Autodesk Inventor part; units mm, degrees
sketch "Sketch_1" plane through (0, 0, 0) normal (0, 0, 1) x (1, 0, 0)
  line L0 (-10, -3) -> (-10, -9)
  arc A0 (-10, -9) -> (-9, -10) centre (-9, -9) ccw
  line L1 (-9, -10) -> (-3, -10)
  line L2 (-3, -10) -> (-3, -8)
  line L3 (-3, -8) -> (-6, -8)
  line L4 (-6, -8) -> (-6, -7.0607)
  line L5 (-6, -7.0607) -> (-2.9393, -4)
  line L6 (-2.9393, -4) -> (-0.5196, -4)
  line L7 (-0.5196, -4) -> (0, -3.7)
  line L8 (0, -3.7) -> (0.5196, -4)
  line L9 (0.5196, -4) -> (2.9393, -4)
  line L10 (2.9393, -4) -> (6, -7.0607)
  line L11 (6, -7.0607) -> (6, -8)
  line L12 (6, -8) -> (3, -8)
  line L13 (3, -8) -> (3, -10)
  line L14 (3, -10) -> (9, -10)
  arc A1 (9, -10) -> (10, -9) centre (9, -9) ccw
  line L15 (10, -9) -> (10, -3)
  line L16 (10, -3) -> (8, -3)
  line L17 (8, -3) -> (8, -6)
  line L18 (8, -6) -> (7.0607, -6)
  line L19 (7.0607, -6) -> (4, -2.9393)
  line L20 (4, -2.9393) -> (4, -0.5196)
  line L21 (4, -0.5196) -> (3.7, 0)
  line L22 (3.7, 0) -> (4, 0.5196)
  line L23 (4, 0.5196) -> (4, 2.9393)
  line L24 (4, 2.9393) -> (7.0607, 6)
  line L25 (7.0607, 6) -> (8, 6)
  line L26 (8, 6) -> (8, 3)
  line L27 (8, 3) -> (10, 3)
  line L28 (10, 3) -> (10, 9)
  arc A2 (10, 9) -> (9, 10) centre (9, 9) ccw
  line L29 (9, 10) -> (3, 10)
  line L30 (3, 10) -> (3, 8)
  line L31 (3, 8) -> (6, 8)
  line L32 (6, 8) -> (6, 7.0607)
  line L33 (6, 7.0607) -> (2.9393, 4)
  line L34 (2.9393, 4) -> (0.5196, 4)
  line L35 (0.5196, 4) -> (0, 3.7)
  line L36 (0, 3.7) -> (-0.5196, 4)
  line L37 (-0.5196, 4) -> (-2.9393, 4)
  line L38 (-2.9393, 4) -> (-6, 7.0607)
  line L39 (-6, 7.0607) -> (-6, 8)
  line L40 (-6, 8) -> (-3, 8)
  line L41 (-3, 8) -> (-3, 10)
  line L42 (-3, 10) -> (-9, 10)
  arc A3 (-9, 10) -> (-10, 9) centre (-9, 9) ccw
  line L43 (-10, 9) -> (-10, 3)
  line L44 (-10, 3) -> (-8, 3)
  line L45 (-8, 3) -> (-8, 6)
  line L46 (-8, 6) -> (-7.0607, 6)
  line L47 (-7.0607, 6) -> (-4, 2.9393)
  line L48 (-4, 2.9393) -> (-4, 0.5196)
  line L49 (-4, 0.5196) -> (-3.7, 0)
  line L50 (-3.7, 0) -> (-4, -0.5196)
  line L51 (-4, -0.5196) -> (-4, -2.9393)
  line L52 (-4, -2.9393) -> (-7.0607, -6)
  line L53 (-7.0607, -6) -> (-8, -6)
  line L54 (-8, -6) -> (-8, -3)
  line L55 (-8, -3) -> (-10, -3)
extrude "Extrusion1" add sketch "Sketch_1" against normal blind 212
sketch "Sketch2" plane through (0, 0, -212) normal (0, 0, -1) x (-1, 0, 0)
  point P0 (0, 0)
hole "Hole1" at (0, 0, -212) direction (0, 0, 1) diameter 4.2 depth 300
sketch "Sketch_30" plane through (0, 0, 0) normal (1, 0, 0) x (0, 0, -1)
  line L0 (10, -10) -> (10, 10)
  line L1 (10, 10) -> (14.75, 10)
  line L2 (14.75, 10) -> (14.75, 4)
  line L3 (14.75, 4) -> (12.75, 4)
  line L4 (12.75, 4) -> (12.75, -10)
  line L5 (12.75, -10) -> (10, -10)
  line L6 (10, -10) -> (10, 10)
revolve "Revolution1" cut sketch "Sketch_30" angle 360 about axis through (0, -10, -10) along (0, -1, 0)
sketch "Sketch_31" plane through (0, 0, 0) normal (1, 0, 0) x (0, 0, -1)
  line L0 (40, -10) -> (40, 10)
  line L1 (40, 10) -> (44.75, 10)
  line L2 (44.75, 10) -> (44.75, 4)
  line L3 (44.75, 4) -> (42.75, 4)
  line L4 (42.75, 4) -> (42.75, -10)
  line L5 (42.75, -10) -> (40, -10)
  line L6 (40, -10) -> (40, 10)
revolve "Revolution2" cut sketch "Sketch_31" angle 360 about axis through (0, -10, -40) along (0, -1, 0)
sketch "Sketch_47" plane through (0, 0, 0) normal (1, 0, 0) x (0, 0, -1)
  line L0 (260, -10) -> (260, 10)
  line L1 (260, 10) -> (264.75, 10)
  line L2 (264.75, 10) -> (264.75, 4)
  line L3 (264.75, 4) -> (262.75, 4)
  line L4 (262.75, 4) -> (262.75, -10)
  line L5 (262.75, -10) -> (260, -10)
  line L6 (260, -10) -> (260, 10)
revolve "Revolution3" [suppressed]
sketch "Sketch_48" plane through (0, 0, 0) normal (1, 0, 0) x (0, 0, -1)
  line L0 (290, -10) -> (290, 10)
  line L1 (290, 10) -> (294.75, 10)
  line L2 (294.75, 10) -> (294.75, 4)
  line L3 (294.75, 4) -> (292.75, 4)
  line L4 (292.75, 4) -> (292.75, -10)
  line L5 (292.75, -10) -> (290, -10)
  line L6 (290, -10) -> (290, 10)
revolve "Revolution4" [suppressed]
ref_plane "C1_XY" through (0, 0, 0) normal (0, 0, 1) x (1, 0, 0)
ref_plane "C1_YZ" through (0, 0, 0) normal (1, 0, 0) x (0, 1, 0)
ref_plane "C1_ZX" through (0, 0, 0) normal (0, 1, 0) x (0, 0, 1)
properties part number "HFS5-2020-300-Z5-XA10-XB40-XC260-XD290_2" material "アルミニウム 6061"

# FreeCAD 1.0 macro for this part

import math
import FreeCAD as App
import Part
import Sketcher
Q = App.Units.Quantity

doc = App.newDocument("Part")
params = doc.addObject("Spreadsheet::Sheet", "Params")
for row, (alias, value) in enumerate([
    ("sketch1_radius", "1 mm"),
    ("sketch1_width", "2 mm"),
    ("sketch1_width2", "6 mm"),
    ("sketch1_width3", "3 mm"),
    ("sketch1_length", "0.6 mm"),
    ("pad1_length", "212 mm"),
    ("sketch2_diameter", "4.2 mm"),
    ("hole_diameter", "4.2 mm"),
    ("hole_depth", "300 mm"),
    ("sketch3_width", "20 mm"),
    ("sketch3_width2", "14 mm"),
    ("sketch3_height", "2 mm"),
    ("sketch3_height2", "2.75 mm"),
    ("groove_angle", "360 deg"),
    ("sketch4_width", "20 mm"),
    ("sketch4_width2", "14 mm"),
    ("sketch4_height", "2 mm"),
    ("sketch4_height2", "2.75 mm"),
    ("groove2_angle", "360 deg"),
], start=1):
    params.set(f"A{row}", alias)
    params.set(f"B{row}", "=" + value)
    params.setAlias(f"B{row}", alias)

body = doc.addObject("PartDesign::Body", "Body")

sketch1 = body.newObject("Sketcher::SketchObject", "Sketch")
sketch1.AttachmentSupport = (doc.getObject("XY_Plane"), [""])
sketch1.MapMode = "FlatFace"
sketch1.addGeometry(Part.LineSegment(App.Vector(-8, -3, 0), App.Vector(-10, -3, 0)), False)
sketch1.addGeometry(Part.LineSegment(App.Vector(-10, -3, 0), App.Vector(-10, -9, 0)), False)
sketch1.addGeometry(Part.ArcOfCircle(Part.Circle(App.Vector(-9, -9, 0), App.Vector(0, 0, 1), 1), math.radians(180), math.radians(270)), False)
sketch1.addGeometry(Part.LineSegment(App.Vector(-9, -10, 0), App.Vector(-3, -10, 0)), False)
sketch1.addGeometry(Part.LineSegment(App.Vector(-3, -10, 0), App.Vector(-3, -8, 0)), False)
sketch1.addGeometry(Part.LineSegment(App.Vector(-3, -8, 0), App.Vector(-6, -8, 0)), False)
sketch1.addGeometry(Part.LineSegment(App.Vector(-6, -8, 0), App.Vector(-6, -7.1, 0)), False)
sketch1.addGeometry(Part.LineSegment(App.Vector(-6, -7.1, 0), App.Vector(-2.9, -4, 0)), False)
sketch1.addGeometry(Part.LineSegment(App.Vector(-2.9, -4, 0), App.Vector(-0.5, -4, 0)), False)
sketch1.addGeometry(Part.LineSegment(App.Vector(-0.5, -4, 0), App.Vector(0, -3.7, 0)), False)
sketch1.addGeometry(Part.LineSegment(App.Vector(0, -3.7, 0), App.Vector(0.5, -4, 0)), False)
sketch1.addGeometry(Part.LineSegment(App.Vector(0.5, -4, 0), App.Vector(2.9, -4, 0)), False)
sketch1.addGeometry(Part.LineSegment(App.Vector(2.9, -4, 0), App.Vector(6, -7.1, 0)), False)
sketch1.addGeometry(Part.LineSegment(App.Vector(6, -7.1, 0), App.Vector(6, -8, 0)), False)
sketch1.addGeometry(Part.LineSegment(App.Vector(6, -8, 0), App.Vector(3, -8, 0)), False)
sketch1.addGeometry(Part.LineSegment(App.Vector(3, -8, 0), App.Vector(3, -10, 0)), False)
sketch1.addGeometry(Part.LineSegment(App.Vector(3, -10, 0), App.Vector(9, -10, 0)), False)
sketch1.addGeometry(Part.ArcOfCircle(Part.Circle(App.Vector(9, -9, 0), App.Vector(0, 0, 1), 1), math.radians(-90), math.radians(0)), False)
sketch1.addGeometry(Part.LineSegment(App.Vector(10, -9, 0), App.Vector(10, -3, 0)), False)
sketch1.addGeometry(Part.LineSegment(App.Vector(10, -3, 0), App.Vector(8, -3, 0)), False)
sketch1.addGeometry(Part.LineSegment(App.Vector(8, -3, 0), App.Vector(8, -6, 0)), False)
sketch1.addGeometry(Part.LineSegment(App.Vector(8, -6, 0), App.Vector(7.1, -6, 0)), False)
sketch1.addGeometry(Part.LineSegment(App.Vector(7.1, -6, 0), App.Vector(4, -2.9, 0)), False)
sketch1.addGeometry(Part.LineSegment(App.Vector(4, -2.9, 0), App.Vector(4, -0.5, 0)), False)
sketch1.addGeometry(Part.LineSegment(App.Vector(4, -0.5, 0), App.Vector(3.7, 0, 0)), False)
sketch1.addGeometry(Part.LineSegment(App.Vector(3.7, 0, 0), App.Vector(4, 0.5, 0)), False)
sketch1.addGeometry(Part.LineSegment(App.Vector(4, 0.5, 0), App.Vector(4, 2.9, 0)), False)
sketch1.addGeometry(Part.LineSegment(App.Vector(4, 2.9, 0), App.Vector(7.1, 6, 0)), False)
sketch1.addGeometry(Part.LineSegment(App.Vector(7.1, 6, 0), App.Vector(8, 6, 0)), False)
sketch1.addGeometry(Part.LineSegment(App.Vector(8, 6, 0), App.Vector(8, 3, 0)), False)
sketch1.addGeometry(Part.LineSegment(App.Vector(8, 3, 0), App.Vector(10, 3, 0)), False)
sketch1.addGeometry(Part.LineSegment(App.Vector(10, 3, 0), App.Vector(10, 9, 0)), False)
sketch1.addGeometry(Part.ArcOfCircle(Part.Circle(App.Vector(9, 9, 0), App.Vector(0, 0, 1), 1), math.radians(0), math.radians(90)), False)
sketch1.addGeometry(Part.LineSegment(App.Vector(9, 10, 0), App.Vector(3, 10, 0)), False)
sketch1.addGeometry(Part.LineSegment(App.Vector(3, 10, 0), App.Vector(3, 8, 0)), False)
sketch1.addGeometry(Part.LineSegment(App.Vector(3, 8, 0), App.Vector(6, 8, 0)), False)
sketch1.addGeometry(Part.LineSegment(App.Vector(6, 8, 0), App.Vector(6, 7.1, 0)), False)
sketch1.addGeometry(Part.LineSegment(App.Vector(6, 7.1, 0), App.Vector(2.9, 4, 0)), False)
sketch1.addGeometry(Part.LineSegment(App.Vector(2.9, 4, 0), App.Vector(0.5, 4, 0)), False)
sketch1.addGeometry(Part.LineSegment(App.Vector(0.5, 4, 0), App.Vector(0, 3.7, 0)), False)
sketch1.addGeometry(Part.LineSegment(App.Vector(0, 3.7, 0), App.Vector(-0.5, 4, 0)), False)
sketch1.addGeometry(Part.LineSegment(App.Vector(-0.5, 4, 0), App.Vector(-2.9, 4, 0)), False)
sketch1.addGeometry(Part.LineSegment(App.Vector(-2.9, 4, 0), App.Vector(-6, 7.1, 0)), False)
sketch1.addGeometry(Part.LineSegment(App.Vector(-6, 7.1, 0), App.Vector(-6, 8, 0)), False)
sketch1.addGeometry(Part.LineSegment(App.Vector(-6, 8, 0), App.Vector(-3, 8, 0)), False)
sketch1.addGeometry(Part.LineSegment(App.Vector(-3, 8, 0), App.Vector(-3, 10, 0)), False)
sketch1.addGeometry(Part.LineSegment(App.Vector(-3, 10, 0), App.Vector(-9, 10, 0)), False)
sketch1.addGeometry(Part.ArcOfCircle(Part.Circle(App.Vector(-9, 9, 0), App.Vector(0, 0, 1), 1), math.radians(90), math.radians(180)), False)
sketch1.addGeometry(Part.LineSegment(App.Vector(-10, 9, 0), App.Vector(-10, 3, 0)), False)
sketch1.addGeometry(Part.LineSegment(App.Vector(-10, 3, 0), App.Vector(-8, 3, 0)), False)
sketch1.addGeometry(Part.LineSegment(App.Vector(-8, 3, 0), App.Vector(-8, 6, 0)), False)
sketch1.addGeometry(Part.LineSegment(App.Vector(-8, 6, 0), App.Vector(-7.1, 6, 0)), False)
sketch1.addGeometry(Part.LineSegment(App.Vector(-7.1, 6, 0), App.Vector(-4, 2.9, 0)), False)
sketch1.addGeometry(Part.LineSegment(App.Vector(-4, 2.9, 0), App.Vector(-4, 0.5, 0)), False)
sketch1.addGeometry(Part.LineSegment(App.Vector(-4, 0.5, 0), App.Vector(-3.7, 0, 0)), False)
sketch1.addGeometry(Part.LineSegment(App.Vector(-3.7, 0, 0), App.Vector(-4, -0.5, 0)), False)
sketch1.addGeometry(Part.LineSegment(App.Vector(-4, -0.5, 0), App.Vector(-4, -2.9, 0)), False)
sketch1.addGeometry(Part.LineSegment(App.Vector(-4, -2.9, 0), App.Vector(-7.1, -6, 0)), False)
sketch1.addGeometry(Part.LineSegment(App.Vector(-7.1, -6, 0), App.Vector(-8, -6, 0)), False)
sketch1.addGeometry(Part.LineSegment(App.Vector(-8, -6, 0), App.Vector(-8, -3, 0)), False)
sketch1.addConstraint(Sketcher.Constraint("Coincident", 0, 2, 1, 1))
sketch1.addConstraint(Sketcher.Constraint("Tangent", 1, 2, 2, 1))
sketch1.addConstraint(Sketcher.Constraint("Tangent", 2, 2, 3, 1))
sketch1.addConstraint(Sketcher.Constraint("Coincident", 3, 2, 4, 1))
sketch1.addConstraint(Sketcher.Constraint("Coincident", 4, 2, 5, 1))
sketch1.addConstraint(Sketcher.Constraint("Coincident", 5, 2, 6, 1))
sketch1.addConstraint(Sketcher.Constraint("Coincident", 6, 2, 7, 1))
sketch1.addConstraint(Sketcher.Constraint("Coincident", 7, 2, 8, 1))
sketch1.addConstraint(Sketcher.Constraint("Coincident", 8, 2, 9, 1))
sketch1.addConstraint(Sketcher.Constraint("Coincident", 9, 2, 10, 1))
sketch1.addConstraint(Sketcher.Constraint("Coincident", 10, 2, 11, 1))
sketch1.addConstraint(Sketcher.Constraint("Coincident", 11, 2, 12, 1))
sketch1.addConstraint(Sketcher.Constraint("Coincident", 12, 2, 13, 1))
sketch1.addConstraint(Sketcher.Constraint("Coincident", 13, 2, 14, 1))
sketch1.addConstraint(Sketcher.Constraint("Coincident", 14, 2, 15, 1))
sketch1.addConstraint(Sketcher.Constraint("Coincident", 15, 2, 16, 1))
sketch1.addConstraint(Sketcher.Constraint("Tangent", 16, 2, 17, 1))
sketch1.addConstraint(Sketcher.Constraint("Tangent", 17, 2, 18, 1))
sketch1.addConstraint(Sketcher.Constraint("Coincident", 18, 2, 19, 1))
sketch1.addConstraint(Sketcher.Constraint("Coincident", 19, 2, 20, 1))
sketch1.addConstraint(Sketcher.Constraint("Coincident", 20, 2, 21, 1))
sketch1.addConstraint(Sketcher.Constraint("Coincident", 21, 2, 22, 1))
sketch1.addConstraint(Sketcher.Constraint("Coincident", 22, 2, 23, 1))
sketch1.addConstraint(Sketcher.Constraint("Coincident", 23, 2, 24, 1))
sketch1.addConstraint(Sketcher.Constraint("Coincident", 24, 2, 25, 1))
sketch1.addConstraint(Sketcher.Constraint("Coincident", 25, 2, 26, 1))
sketch1.addConstraint(Sketcher.Constraint("Coincident", 26, 2, 27, 1))
sketch1.addConstraint(Sketcher.Constraint("Coincident", 27, 2, 28, 1))
sketch1.addConstraint(Sketcher.Constraint("Coincident", 28, 2, 29, 1))
sketch1.addConstraint(Sketcher.Constraint("Coincident", 29, 2, 30, 1))
sketch1.addConstraint(Sketcher.Constraint("Coincident", 30, 2, 31, 1))
sketch1.addConstraint(Sketcher.Constraint("Tangent", 31, 2, 32, 1))
sketch1.addConstraint(Sketcher.Constraint("Tangent", 32, 2, 33, 1))
sketch1.addConstraint(Sketcher.Constraint("Coincident", 33, 2, 34, 1))
sketch1.addConstraint(Sketcher.Constraint("Coincident", 34, 2, 35, 1))
sketch1.addConstraint(Sketcher.Constraint("Coincident", 35, 2, 36, 1))
sketch1.addConstraint(Sketcher.Constraint("Coincident", 36, 2, 37, 1))
sketch1.addConstraint(Sketcher.Constraint("Coincident", 37, 2, 38, 1))
sketch1.addConstraint(Sketcher.Constraint("Coincident", 38, 2, 39, 1))
sketch1.addConstraint(Sketcher.Constraint("Coincident", 39, 2, 40, 1))
sketch1.addConstraint(Sketcher.Constraint("Coincident", 40, 2, 41, 1))
sketch1.addConstraint(Sketcher.Constraint("Coincident", 41, 2, 42, 1))
sketch1.addConstraint(Sketcher.Constraint("Coincident", 42, 2, 43, 1))
sketch1.addConstraint(Sketcher.Constraint("Coincident", 43, 2, 44, 1))
sketch1.addConstraint(Sketcher.Constraint("Coincident", 44, 2, 45, 1))
sketch1.addConstraint(Sketcher.Constraint("Coincident", 45, 2, 46, 1))
sketch1.addConstraint(Sketcher.Constraint("Tangent", 46, 2, 47, 1))
sketch1.addConstraint(Sketcher.Constraint("Tangent", 47, 2, 48, 1))
sketch1.addConstraint(Sketcher.Constraint("Coincident", 48, 2, 49, 1))
sketch1.addConstraint(Sketcher.Constraint("Coincident", 49, 2, 50, 1))
sketch1.addConstraint(Sketcher.Constraint("Coincident", 50, 2, 51, 1))
sketch1.addConstraint(Sketcher.Constraint("Coincident", 51, 2, 52, 1))
sketch1.addConstraint(Sketcher.Constraint("Coincident", 52, 2, 53, 1))
sketch1.addConstraint(Sketcher.Constraint("Coincident", 53, 2, 54, 1))
sketch1.addConstraint(Sketcher.Constraint("Coincident", 54, 2, 55, 1))
sketch1.addConstraint(Sketcher.Constraint("Coincident", 55, 2, 56, 1))
sketch1.addConstraint(Sketcher.Constraint("Coincident", 56, 2, 57, 1))
sketch1.addConstraint(Sketcher.Constraint("Coincident", 57, 2, 58, 1))
sketch1.addConstraint(Sketcher.Constraint("Coincident", 58, 2, 59, 1))
sketch1.addConstraint(Sketcher.Constraint("Coincident", 59, 2, 0, 1))
sketch1.addConstraint(Sketcher.Constraint("Horizontal", 0))
sketch1.addConstraint(Sketcher.Constraint("Vertical", 1))
sketch1.addConstraint(Sketcher.Constraint("Horizontal", 3))
sketch1.addConstraint(Sketcher.Constraint("Vertical", 4))
sketch1.addConstraint(Sketcher.Constraint("Horizontal", 5))
sketch1.addConstraint(Sketcher.Constraint("Vertical", 6))
sketch1.addConstraint(Sketcher.Constraint("Horizontal", 8))
sketch1.addConstraint(Sketcher.Constraint("Horizontal", 11))
sketch1.addConstraint(Sketcher.Constraint("Vertical", 13))
sketch1.addConstraint(Sketcher.Constraint("Horizontal", 14))
sketch1.addConstraint(Sketcher.Constraint("Vertical", 15))
sketch1.addConstraint(Sketcher.Constraint("Horizontal", 16))
sketch1.addConstraint(Sketcher.Constraint("Vertical", 18))
sketch1.addConstraint(Sketcher.Constraint("Horizontal", 19))
sketch1.addConstraint(Sketcher.Constraint("Vertical", 20))
sketch1.addConstraint(Sketcher.Constraint("Horizontal", 21))
sketch1.addConstraint(Sketcher.Constraint("Vertical", 23))
sketch1.addConstraint(Sketcher.Constraint("Vertical", 26))
sketch1.addConstraint(Sketcher.Constraint("Horizontal", 28))
sketch1.addConstraint(Sketcher.Constraint("Vertical", 29))
sketch1.addConstraint(Sketcher.Constraint("Horizontal", 30))
sketch1.addConstraint(Sketcher.Constraint("Vertical", 31))
sketch1.addConstraint(Sketcher.Constraint("Horizontal", 33))
sketch1.addConstraint(Sketcher.Constraint("Vertical", 34))
sketch1.addConstraint(Sketcher.Constraint("Horizontal", 35))
sketch1.addConstraint(Sketcher.Constraint("Vertical", 36))
sketch1.addConstraint(Sketcher.Constraint("Horizontal", 38))
sketch1.addConstraint(Sketcher.Constraint("Horizontal", 41))
sketch1.addConstraint(Sketcher.Constraint("Vertical", 43))
sketch1.addConstraint(Sketcher.Constraint("Horizontal", 44))
sketch1.addConstraint(Sketcher.Constraint("Vertical", 45))
sketch1.addConstraint(Sketcher.Constraint("Horizontal", 46))
sketch1.addConstraint(Sketcher.Constraint("Vertical", 48))
sketch1.addConstraint(Sketcher.Constraint("Horizontal", 49))
sketch1.addConstraint(Sketcher.Constraint("Vertical", 50))
sketch1.addConstraint(Sketcher.Constraint("Horizontal", 51))
sketch1.addConstraint(Sketcher.Constraint("Vertical", 53))
sketch1.addConstraint(Sketcher.Constraint("Vertical", 56))
sketch1.addConstraint(Sketcher.Constraint("Horizontal", 58))
sketch1.addConstraint(Sketcher.Constraint("Vertical", 59))
sketch1.addConstraint(Sketcher.Constraint("Equal", 2, 17))
sketch1.addConstraint(Sketcher.Constraint("Equal", 17, 32))
sketch1.addConstraint(Sketcher.Constraint("Equal", 32, 47))
sketch1.addConstraint(Sketcher.Constraint("Symmetric", 2, 3, 32, 3, -1, 1))
sketch1.addConstraint(Sketcher.Constraint("Symmetric", 17, 3, 47, 3, -1, 1))
sketch1.addConstraint(Sketcher.Constraint("Symmetric", 4, 2, 34, 2, -1, 1))
sketch1.addConstraint(Sketcher.Constraint("Symmetric", 6, 2, 36, 2, -1, 1))
sketch1.addConstraint(Sketcher.Constraint("Symmetric", 7, 2, 37, 2, -1, 1))
sketch1.addConstraint(Sketcher.Constraint("Symmetric", 9, 2, 39, 2, -1, 1))
sketch1.addConstraint(Sketcher.Constraint("Symmetric", 10, 2, 40, 2, -1, 1))
sketch1.addConstraint(Sketcher.Constraint("Symmetric", 12, 2, 42, 2, -1, 1))
sketch1.addConstraint(Sketcher.Constraint("Symmetric", 14, 2, 44, 2, -1, 1))
sketch1.addConstraint(Sketcher.Constraint("Symmetric", 19, 2, 49, 2, -1, 1))
sketch1.addConstraint(Sketcher.Constraint("Symmetric", 21, 2, 51, 2, -1, 1))
sketch1.addConstraint(Sketcher.Constraint("Symmetric", 22, 2, 52, 2, -1, 1))
sketch1.addConstraint(Sketcher.Constraint("Symmetric", 24, 2, 54, 2, -1, 1))
sketch1.addConstraint(Sketcher.Constraint("Symmetric", 25, 2, 55, 2, -1, 1))
sketch1.addConstraint(Sketcher.Constraint("Symmetric", 27, 2, 57, 2, -1, 1))
sketch1.addConstraint(Sketcher.Constraint("Symmetric", 29, 2, 59, 2, -1, 1))
sketch1.addConstraint(Sketcher.Constraint("Symmetric", 2, 3, 17, 3, -2))
sketch1.addConstraint(Sketcher.Constraint("Symmetric", 8, 2, 10, 2, -2))
sketch1.addConstraint(Sketcher.Constraint("Symmetric", 6, 2, 12, 2, -2))
sketch1.addConstraint(Sketcher.Constraint("Symmetric", 4, 2, 14, 2, -2))
sketch1.addConstraint(Sketcher.Constraint("Symmetric", 29, 2, 49, 2, -2))
sketch1.addConstraint(Sketcher.Constraint("Symmetric", 27, 2, 51, 2, -2))
sketch1.addConstraint(Sketcher.Constraint("Symmetric", 26, 2, 52, 2, -2))
sketch1.addConstraint(Sketcher.Constraint("PointOnObject", 9, 2, -2))
sketch1.addConstraint(Sketcher.Constraint("PointOnObject", 24, 2, -1))
sketch1.addConstraint(Sketcher.Constraint("Perpendicular", 7, 12))
sketch1.addConstraint(Sketcher.Constraint("Parallel", 12, 22))
sketch1.addConstraint(Sketcher.Constraint("Perpendicular", 9, 24))
sketch1.addConstraint(Sketcher.Constraint("Perpendicular", 10, 25))
sketch1.addConstraint(Sketcher.Constraint("Perpendicular", 22, 27))
sketch1.addConstraint(Sketcher.Constraint("Perpendicular", 24, 39))
sketch1.addConstraint(Sketcher.Constraint("Perpendicular", 37, 42))
sketch1.addConstraint(Sketcher.Constraint("Perpendicular", 39, 54))
sketch1.addConstraint(Sketcher.Constraint("Perpendicular", 52, 57))
sketch1.addConstraint(Sketcher.Constraint("Equal", 46, 1))
sketch1.addConstraint(Sketcher.Constraint("Equal", 49, 4))
sketch1.addConstraint(Sketcher.Constraint("Equal", 58, 6))
sketch1.addConstraint(Sketcher.Constraint("Equal", 44, 20))
sketch1.addConstraint(Sketcher.Constraint("Equal", 41, 23))
sketch1.addConstraint(Sketcher.Constraint("Equal", 12, 22))
sketch1.addConstraint(Sketcher.Constraint("Equal", 10, 24))
sketch1.addConstraint(Sketcher.Constraint("Radius", 2, 1.0))
sketch1.addConstraint(Sketcher.Constraint("DistanceX", 0, 2, 0, 1, 2.0))
sketch1.addConstraint(Sketcher.Constraint("DistanceX", 3, 1, 3, 2, 6.0))
sketch1.addConstraint(Sketcher.Constraint("DistanceX", 5, 2, 5, 1, 3.0))
sketch1.addConstraint(Sketcher.Constraint("Angle", 9, Q("30.0007 deg")))
sketch1.addConstraint(Sketcher.Constraint("DistanceX", 2, 3, -1, 1, 9.0))
sketch1.addConstraint(Sketcher.Constraint("DistanceY", 7, 2, -1, 1, 4.0))
sketch1.addConstraint(Sketcher.Constraint("Distance", 9, 0.6))
sketch1.addConstraint(Sketcher.Constraint("DistanceX", 8, 1, 8, 2, 2.4197))
sketch1.setExpression("Constraints[144]", "Params.sketch1_radius")
sketch1.setExpression("Constraints[145]", "Params.sketch1_width")
sketch1.setExpression("Constraints[146]", "Params.sketch1_width2")
sketch1.setExpression("Constraints[147]", "Params.sketch1_width3")
sketch1.setExpression("Constraints[151]", "Params.sketch1_length")
pad1 = body.newObject("PartDesign::Pad", "Pad")
pad1.Profile = sketch1
pad1.setExpression("Length", "Params.pad1_length")
pad1.Reversed = True

sketch2 = body.newObject("Sketcher::SketchObject", "Sketch001")
sketch2.AttachmentSupport = (doc.getObject("XY_Plane"), [""])
sketch2.MapMode = "FlatFace"
sketch2.AttachmentOffset = App.Placement(App.Vector(0, 0, -212), App.Rotation())
sketch2.addGeometry(Part.Circle(App.Vector(0, 0, 0), App.Vector(0, 0, 1), 2.1), False)
sketch2.addConstraint(Sketcher.Constraint("Coincident", 0, 3, -1, 1))
sketch2.addConstraint(Sketcher.Constraint("Diameter", 0, 4.2))
sketch2.setExpression("Constraints[1]", "Params.sketch2_diameter")
doc.recompute()
hole = body.newObject("PartDesign::Hole", "Hole")
hole.Profile = sketch2
hole.ThreadType = "None"
hole.setExpression("Diameter", "Params.hole_diameter")
hole.DepthType = "Dimension"
hole.setExpression("Depth", "Params.hole_depth")
hole.DrillPoint = "Flat"
hole.Reversed = True

sketch3 = body.newObject("Sketcher::SketchObject", "Sketch002")
sketch3.AttachmentSupport = (doc.getObject("YZ_Plane"), [""])
sketch3.MapMode = "FlatFace"
sketch3.addGeometry(Part.LineSegment(App.Vector(10, -10, 0), App.Vector(-10, -10, 0)), False)
sketch3.addGeometry(Part.LineSegment(App.Vector(-10, -10, 0), App.Vector(-10, -12.8, 0)), False)
sketch3.addGeometry(Part.LineSegment(App.Vector(-10, -12.8, 0), App.Vector(4, -12.8, 0)), False)
sketch3.addGeometry(Part.LineSegment(App.Vector(4, -12.8, 0), App.Vector(4, -14.8, 0)), False)
sketch3.addGeometry(Part.LineSegment(App.Vector(4, -14.8, 0), App.Vector(10, -14.8, 0)), False)
sketch3.addGeometry(Part.LineSegment(App.Vector(10, -14.8, 0), App.Vector(10, -10, 0)), False)
sketch3.addGeometry(Part.LineSegment(App.Vector(10, -10, 0), App.Vector(-10, -10, 0)), True)
sketch3.addConstraint(Sketcher.Constraint("Coincident", 0, 2, 1, 1))
sketch3.addConstraint(Sketcher.Constraint("Coincident", 1, 2, 2, 1))
sketch3.addConstraint(Sketcher.Constraint("Coincident", 2, 2, 3, 1))
sketch3.addConstraint(Sketcher.Constraint("Coincident", 3, 2, 4, 1))
sketch3.addConstraint(Sketcher.Constraint("Coincident", 4, 2, 5, 1))
sketch3.addConstraint(Sketcher.Constraint("Coincident", 5, 2, 0, 1))
sketch3.addConstraint(Sketcher.Constraint("Horizontal", 0))
sketch3.addConstraint(Sketcher.Constraint("Vertical", 1))
sketch3.addConstraint(Sketcher.Constraint("Horizontal", 2))
sketch3.addConstraint(Sketcher.Constraint("Vertical", 3))
sketch3.addConstraint(Sketcher.Constraint("Horizontal", 4))
sketch3.addConstraint(Sketcher.Constraint("Vertical", 5))
sketch3.addConstraint(Sketcher.Constraint("Horizontal", 6))
sketch3.addConstraint(Sketcher.Constraint("Coincident", 6, 1, 5, 2))
sketch3.addConstraint(Sketcher.Constraint("Vertical", 1, 2, 6, 2))
sketch3.addConstraint(Sketcher.Constraint("DistanceX", 0, 2, 0, 1, 20.0))
sketch3.addConstraint(Sketcher.Constraint("DistanceX", 2, 1, 2, 2, 14.0))
sketch3.addConstraint(Sketcher.Constraint("DistanceY", 3, 2, 3, 1, 2.0))
sketch3.addConstraint(Sketcher.Constraint("DistanceX", 0, 2, -1, 1, 10.0))
sketch3.addConstraint(Sketcher.Constraint("DistanceY", 0, 2, -1, 1, 10.0))
sketch3.addConstraint(Sketcher.Constraint("DistanceY", 1, 2, 1, 1, 2.75))
sketch3.setExpression("Constraints[15]", "Params.sketch3_width")
sketch3.setExpression("Constraints[16]", "Params.sketch3_width2")
sketch3.setExpression("Constraints[17]", "Params.sketch3_height")
sketch3.setExpression("Constraints[20]", "Params.sketch3_height2")
groove = body.newObject("PartDesign::Groove", "Groove")
groove.Profile = sketch3
groove.ReferenceAxis = (sketch3, ["Axis0"])
groove.setExpression("Angle", "Params.groove_angle")

sketch4 = body.newObject("Sketcher::SketchObject", "Sketch003")
sketch4.AttachmentSupport = (doc.getObject("YZ_Plane"), [""])
sketch4.MapMode = "FlatFace"
sketch4.addGeometry(Part.LineSegment(App.Vector(10, -40, 0), App.Vector(-10, -40, 0)), False)
sketch4.addGeometry(Part.LineSegment(App.Vector(-10, -40, 0), App.Vector(-10, -42.8, 0)), False)
sketch4.addGeometry(Part.LineSegment(App.Vector(-10, -42.8, 0), App.Vector(4, -42.8, 0)), False)
sketch4.addGeometry(Part.LineSegment(App.Vector(4, -42.8, 0), App.Vector(4, -44.8, 0)), False)
sketch4.addGeometry(Part.LineSegment(App.Vector(4, -44.8, 0), App.Vector(10, -44.8, 0)), False)
sketch4.addGeometry(Part.LineSegment(App.Vector(10, -44.8, 0), App.Vector(10, -40, 0)), False)
sketch4.addGeometry(Part.LineSegment(App.Vector(10, -40, 0), App.Vector(-10, -40, 0)), True)
sketch4.addConstraint(Sketcher.Constraint("Coincident", 0, 2, 1, 1))
sketch4.addConstraint(Sketcher.Constraint("Coincident", 1, 2, 2, 1))
sketch4.addConstraint(Sketcher.Constraint("Coincident", 2, 2, 3, 1))
sketch4.addConstraint(Sketcher.Constraint("Coincident", 3, 2, 4, 1))
sketch4.addConstraint(Sketcher.Constraint("Coincident", 4, 2, 5, 1))
sketch4.addConstraint(Sketcher.Constraint("Coincident", 5, 2, 0, 1))
sketch4.addConstraint(Sketcher.Constraint("Horizontal", 0))
sketch4.addConstraint(Sketcher.Constraint("Vertical", 1))
sketch4.addConstraint(Sketcher.Constraint("Horizontal", 2))
sketch4.addConstraint(Sketcher.Constraint("Vertical", 3))
sketch4.addConstraint(Sketcher.Constraint("Horizontal", 4))
sketch4.addConstraint(Sketcher.Constraint("Vertical", 5))
sketch4.addConstraint(Sketcher.Constraint("Horizontal", 6))
sketch4.addConstraint(Sketcher.Constraint("Coincident", 6, 1, 5, 2))
sketch4.addConstraint(Sketcher.Constraint("Vertical", 1, 2, 6, 2))
sketch4.addConstraint(Sketcher.Constraint("DistanceX", 0, 2, 0, 1, 20.0))
sketch4.addConstraint(Sketcher.Constraint("DistanceX", 2, 1, 2, 2, 14.0))
sketch4.addConstraint(Sketcher.Constraint("DistanceY", 3, 2, 3, 1, 2.0))
sketch4.addConstraint(Sketcher.Constraint("DistanceX", 0, 2, -1, 1, 10.0))
sketch4.addConstraint(Sketcher.Constraint("DistanceY", 0, 2, -1, 1, 40.0))
sketch4.addConstraint(Sketcher.Constraint("DistanceY", 1, 2, 1, 1, 2.75))
sketch4.setExpression("Constraints[15]", "Params.sketch4_width")
sketch4.setExpression("Constraints[16]", "Params.sketch4_width2")
sketch4.setExpression("Constraints[17]", "Params.sketch4_height")
sketch4.setExpression("Constraints[20]", "Params.sketch4_height2")
groove2 = body.newObject("PartDesign::Groove", "Groove001")
groove2.Profile = sketch4
groove2.ReferenceAxis = (sketch4, ["Axis0"])
groove2.setExpression("Angle", "Params.groove2_angle")

doc.recompute()
